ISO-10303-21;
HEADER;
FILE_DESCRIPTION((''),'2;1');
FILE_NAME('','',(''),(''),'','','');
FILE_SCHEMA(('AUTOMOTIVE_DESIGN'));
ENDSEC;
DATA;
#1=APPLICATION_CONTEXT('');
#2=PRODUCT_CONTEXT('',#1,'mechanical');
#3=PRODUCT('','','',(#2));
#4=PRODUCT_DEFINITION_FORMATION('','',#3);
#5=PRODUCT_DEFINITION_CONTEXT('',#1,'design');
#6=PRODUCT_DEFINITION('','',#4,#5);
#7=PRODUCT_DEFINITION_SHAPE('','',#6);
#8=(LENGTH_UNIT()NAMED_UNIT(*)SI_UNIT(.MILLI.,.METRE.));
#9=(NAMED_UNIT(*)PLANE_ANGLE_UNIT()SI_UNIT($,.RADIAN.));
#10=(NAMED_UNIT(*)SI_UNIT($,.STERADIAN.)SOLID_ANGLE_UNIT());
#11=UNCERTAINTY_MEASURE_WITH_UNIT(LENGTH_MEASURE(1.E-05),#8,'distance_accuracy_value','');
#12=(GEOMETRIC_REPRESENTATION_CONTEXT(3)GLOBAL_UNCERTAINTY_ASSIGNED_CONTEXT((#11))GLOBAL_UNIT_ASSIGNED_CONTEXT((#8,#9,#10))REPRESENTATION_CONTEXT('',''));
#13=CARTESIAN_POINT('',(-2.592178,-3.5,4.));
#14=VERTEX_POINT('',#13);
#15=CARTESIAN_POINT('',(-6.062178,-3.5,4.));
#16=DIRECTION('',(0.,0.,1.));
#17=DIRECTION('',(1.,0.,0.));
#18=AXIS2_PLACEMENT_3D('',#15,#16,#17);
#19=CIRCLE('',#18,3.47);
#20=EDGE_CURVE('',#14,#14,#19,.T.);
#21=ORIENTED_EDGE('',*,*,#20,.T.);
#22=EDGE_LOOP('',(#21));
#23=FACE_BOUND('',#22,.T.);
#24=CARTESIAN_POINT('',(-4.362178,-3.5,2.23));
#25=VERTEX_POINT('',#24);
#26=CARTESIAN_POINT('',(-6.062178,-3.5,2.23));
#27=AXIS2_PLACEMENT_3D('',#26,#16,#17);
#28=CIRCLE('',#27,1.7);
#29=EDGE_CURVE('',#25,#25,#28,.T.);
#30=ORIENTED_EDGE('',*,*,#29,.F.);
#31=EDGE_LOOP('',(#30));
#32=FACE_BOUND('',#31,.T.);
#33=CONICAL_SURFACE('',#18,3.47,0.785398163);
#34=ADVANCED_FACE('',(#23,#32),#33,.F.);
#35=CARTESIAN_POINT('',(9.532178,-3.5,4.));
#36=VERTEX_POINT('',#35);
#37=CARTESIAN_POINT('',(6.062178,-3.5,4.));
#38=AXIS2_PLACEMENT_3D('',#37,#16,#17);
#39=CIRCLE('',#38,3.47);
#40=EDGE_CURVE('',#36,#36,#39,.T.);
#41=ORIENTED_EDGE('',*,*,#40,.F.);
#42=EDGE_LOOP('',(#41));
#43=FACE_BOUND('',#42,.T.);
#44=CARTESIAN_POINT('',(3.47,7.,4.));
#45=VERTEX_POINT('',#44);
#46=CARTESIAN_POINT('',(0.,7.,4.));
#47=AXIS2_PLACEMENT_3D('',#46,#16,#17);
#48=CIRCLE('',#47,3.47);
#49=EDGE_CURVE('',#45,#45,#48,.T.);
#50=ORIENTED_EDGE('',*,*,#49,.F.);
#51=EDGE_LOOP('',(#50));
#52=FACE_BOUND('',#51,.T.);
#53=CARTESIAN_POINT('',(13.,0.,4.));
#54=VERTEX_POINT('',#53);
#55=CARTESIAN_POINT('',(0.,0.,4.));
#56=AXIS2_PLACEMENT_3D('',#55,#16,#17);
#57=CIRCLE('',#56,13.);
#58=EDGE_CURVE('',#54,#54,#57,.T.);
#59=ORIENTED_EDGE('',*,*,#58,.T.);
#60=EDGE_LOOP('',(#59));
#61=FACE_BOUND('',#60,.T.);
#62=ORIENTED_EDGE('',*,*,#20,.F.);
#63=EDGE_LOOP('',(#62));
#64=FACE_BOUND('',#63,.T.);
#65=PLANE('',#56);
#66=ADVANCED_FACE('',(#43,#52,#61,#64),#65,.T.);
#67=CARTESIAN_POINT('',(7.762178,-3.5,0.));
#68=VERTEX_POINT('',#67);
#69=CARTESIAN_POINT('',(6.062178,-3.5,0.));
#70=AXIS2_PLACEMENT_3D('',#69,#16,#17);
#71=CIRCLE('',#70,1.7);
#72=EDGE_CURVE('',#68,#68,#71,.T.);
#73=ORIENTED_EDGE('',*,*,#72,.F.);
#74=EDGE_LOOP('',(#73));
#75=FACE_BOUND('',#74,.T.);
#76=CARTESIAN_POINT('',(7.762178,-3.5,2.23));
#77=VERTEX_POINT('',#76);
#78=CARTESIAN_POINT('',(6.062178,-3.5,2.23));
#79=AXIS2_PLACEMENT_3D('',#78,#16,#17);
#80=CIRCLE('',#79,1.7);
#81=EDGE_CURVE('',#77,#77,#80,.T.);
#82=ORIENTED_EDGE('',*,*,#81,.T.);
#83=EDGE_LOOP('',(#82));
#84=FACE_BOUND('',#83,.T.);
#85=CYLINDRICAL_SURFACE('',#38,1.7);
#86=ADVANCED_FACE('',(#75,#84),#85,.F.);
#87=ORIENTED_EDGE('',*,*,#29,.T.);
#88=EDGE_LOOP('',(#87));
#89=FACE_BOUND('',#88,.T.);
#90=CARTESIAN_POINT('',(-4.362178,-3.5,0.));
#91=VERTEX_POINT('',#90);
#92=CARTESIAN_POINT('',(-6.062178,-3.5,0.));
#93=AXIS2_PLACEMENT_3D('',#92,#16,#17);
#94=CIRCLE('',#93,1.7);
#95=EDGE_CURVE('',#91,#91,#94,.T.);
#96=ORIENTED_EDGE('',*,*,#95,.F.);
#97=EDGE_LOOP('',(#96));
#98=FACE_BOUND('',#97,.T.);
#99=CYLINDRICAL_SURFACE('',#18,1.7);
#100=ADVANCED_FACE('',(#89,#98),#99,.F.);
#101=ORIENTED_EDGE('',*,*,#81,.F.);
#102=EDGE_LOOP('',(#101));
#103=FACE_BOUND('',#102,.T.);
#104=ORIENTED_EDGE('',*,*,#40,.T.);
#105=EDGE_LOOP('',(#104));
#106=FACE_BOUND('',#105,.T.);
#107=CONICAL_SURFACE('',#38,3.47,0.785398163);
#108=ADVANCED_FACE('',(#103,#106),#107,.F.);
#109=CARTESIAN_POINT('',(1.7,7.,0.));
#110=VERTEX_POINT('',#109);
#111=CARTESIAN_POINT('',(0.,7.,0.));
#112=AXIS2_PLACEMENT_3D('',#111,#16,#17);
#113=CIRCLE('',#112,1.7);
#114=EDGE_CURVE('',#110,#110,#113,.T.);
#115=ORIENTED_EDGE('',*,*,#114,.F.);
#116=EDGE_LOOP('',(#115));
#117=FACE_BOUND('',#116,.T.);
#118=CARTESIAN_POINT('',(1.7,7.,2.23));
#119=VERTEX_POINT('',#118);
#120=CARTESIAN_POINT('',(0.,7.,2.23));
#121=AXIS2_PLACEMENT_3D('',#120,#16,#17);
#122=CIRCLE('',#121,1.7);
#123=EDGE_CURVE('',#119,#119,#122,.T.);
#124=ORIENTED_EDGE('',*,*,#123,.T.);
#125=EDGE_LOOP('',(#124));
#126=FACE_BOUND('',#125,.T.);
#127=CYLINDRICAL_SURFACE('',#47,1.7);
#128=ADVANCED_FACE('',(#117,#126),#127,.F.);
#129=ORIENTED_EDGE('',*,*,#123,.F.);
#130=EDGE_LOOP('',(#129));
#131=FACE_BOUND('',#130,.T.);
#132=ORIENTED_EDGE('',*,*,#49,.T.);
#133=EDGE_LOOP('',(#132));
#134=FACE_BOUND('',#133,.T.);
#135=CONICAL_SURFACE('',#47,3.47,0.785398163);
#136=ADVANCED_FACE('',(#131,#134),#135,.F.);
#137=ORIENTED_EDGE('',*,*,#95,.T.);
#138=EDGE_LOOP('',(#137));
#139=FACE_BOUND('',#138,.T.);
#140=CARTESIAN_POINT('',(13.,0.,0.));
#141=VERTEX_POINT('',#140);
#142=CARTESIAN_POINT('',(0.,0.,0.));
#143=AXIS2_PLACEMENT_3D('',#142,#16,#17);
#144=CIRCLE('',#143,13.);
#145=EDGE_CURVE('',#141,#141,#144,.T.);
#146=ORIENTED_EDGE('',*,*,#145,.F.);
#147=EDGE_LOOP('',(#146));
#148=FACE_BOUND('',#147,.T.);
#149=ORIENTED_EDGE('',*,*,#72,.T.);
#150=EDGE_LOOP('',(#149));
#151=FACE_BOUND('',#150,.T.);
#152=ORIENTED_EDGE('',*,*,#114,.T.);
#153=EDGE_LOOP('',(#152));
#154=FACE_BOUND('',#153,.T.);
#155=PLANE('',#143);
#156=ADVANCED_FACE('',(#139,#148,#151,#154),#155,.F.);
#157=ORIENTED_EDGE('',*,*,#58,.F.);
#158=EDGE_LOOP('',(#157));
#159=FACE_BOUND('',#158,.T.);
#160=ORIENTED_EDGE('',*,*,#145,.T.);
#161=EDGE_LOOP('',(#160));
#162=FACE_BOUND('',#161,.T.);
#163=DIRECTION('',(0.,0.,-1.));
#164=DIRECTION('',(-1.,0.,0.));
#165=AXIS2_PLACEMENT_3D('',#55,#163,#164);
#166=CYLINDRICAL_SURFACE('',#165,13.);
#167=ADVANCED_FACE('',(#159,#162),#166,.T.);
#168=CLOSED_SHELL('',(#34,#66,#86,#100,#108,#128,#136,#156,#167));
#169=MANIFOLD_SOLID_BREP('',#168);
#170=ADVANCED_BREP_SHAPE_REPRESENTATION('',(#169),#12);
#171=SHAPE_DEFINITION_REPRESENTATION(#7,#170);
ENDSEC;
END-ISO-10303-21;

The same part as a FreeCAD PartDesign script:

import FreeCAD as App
import Part
import Sketcher

V = App.Vector
Q = App.Units.Quantity

doc = App.newDocument("Part")
body = doc.addObject("PartDesign::Body", "Body")

# Sketch on XY plane
sketch1 = body.newObject("Sketcher::SketchObject", "Sketch")
sketch1.AttachmentSupport = (doc.getObject("XY_Plane"), [""])
sketch1.MapMode = "FlatFace"
sketch1.addGeometry(Part.Circle(V(0, 0, 0), V(0, 0, 1), 13), False)
sketch1.addConstraint(Sketcher.Constraint("Coincident", 0, 3, -1, 1))
sketch1.addConstraint(Sketcher.Constraint("Diameter", 0, Q("26 mm")))
pad1 = body.newObject("PartDesign::Pad", "Pad")
pad1.Profile = sketch1
pad1.Length = 4

# Sketch on XY plane
sketch2 = body.newObject("Sketcher::SketchObject", "Sketch001")
sketch2.AttachmentSupport = (doc.getObject("XY_Plane"), [""])
sketch2.MapMode = "FlatFace"
sketch2.AttachmentOffset = App.Placement(V(0, 0, 4), App.Rotation())
sketch2.addGeometry(Part.Circle(V(0, 7, 0), V(0, 0, 1), 1.7), False)
sketch2.addGeometry(Part.Circle(V(6.062178, -3.5, 0), V(0, 0, 1), 1.7), False)
sketch2.addGeometry(Part.Circle(V(-6.062178, -3.5, 0), V(0, 0, 1), 1.7), False)
sketch2.addConstraint(Sketcher.Constraint("Equal", 0, 1))
sketch2.addConstraint(Sketcher.Constraint("Equal", 1, 2))
sketch2.addConstraint(Sketcher.Constraint("Symmetric", 1, 3, 2, 3, -2))
sketch2.addConstraint(Sketcher.Constraint("PointOnObject", 0, 3, -2))
sketch2.addConstraint(Sketcher.Constraint("Diameter", 0, Q("3.4 mm")))
sketch2.addConstraint(Sketcher.Constraint("DistanceY", -1, 1, 0, 3, Q("7 mm")))
sketch2.addConstraint(Sketcher.Constraint("DistanceY", 1, 3, -1, 1, Q("3.5 mm")))
sketch2.addConstraint(Sketcher.Constraint("DistanceX", -1, 1, 1, 3, Q("6.062178 mm")))
doc.recompute()
hole = body.newObject("PartDesign::Hole", "Hole")
hole.Profile = sketch2
hole.ThreadType = "None"
hole.Diameter = 3.4
hole.DepthType = "Dimension"
hole.Depth = 12
hole.DrillPoint = "Angled"
hole.DrillPointAngle = 118
hole.HoleCutType = "Countersink"
hole.HoleCutDiameter = 6.94
hole.HoleCutCountersinkAngle = 90

doc.recompute()
